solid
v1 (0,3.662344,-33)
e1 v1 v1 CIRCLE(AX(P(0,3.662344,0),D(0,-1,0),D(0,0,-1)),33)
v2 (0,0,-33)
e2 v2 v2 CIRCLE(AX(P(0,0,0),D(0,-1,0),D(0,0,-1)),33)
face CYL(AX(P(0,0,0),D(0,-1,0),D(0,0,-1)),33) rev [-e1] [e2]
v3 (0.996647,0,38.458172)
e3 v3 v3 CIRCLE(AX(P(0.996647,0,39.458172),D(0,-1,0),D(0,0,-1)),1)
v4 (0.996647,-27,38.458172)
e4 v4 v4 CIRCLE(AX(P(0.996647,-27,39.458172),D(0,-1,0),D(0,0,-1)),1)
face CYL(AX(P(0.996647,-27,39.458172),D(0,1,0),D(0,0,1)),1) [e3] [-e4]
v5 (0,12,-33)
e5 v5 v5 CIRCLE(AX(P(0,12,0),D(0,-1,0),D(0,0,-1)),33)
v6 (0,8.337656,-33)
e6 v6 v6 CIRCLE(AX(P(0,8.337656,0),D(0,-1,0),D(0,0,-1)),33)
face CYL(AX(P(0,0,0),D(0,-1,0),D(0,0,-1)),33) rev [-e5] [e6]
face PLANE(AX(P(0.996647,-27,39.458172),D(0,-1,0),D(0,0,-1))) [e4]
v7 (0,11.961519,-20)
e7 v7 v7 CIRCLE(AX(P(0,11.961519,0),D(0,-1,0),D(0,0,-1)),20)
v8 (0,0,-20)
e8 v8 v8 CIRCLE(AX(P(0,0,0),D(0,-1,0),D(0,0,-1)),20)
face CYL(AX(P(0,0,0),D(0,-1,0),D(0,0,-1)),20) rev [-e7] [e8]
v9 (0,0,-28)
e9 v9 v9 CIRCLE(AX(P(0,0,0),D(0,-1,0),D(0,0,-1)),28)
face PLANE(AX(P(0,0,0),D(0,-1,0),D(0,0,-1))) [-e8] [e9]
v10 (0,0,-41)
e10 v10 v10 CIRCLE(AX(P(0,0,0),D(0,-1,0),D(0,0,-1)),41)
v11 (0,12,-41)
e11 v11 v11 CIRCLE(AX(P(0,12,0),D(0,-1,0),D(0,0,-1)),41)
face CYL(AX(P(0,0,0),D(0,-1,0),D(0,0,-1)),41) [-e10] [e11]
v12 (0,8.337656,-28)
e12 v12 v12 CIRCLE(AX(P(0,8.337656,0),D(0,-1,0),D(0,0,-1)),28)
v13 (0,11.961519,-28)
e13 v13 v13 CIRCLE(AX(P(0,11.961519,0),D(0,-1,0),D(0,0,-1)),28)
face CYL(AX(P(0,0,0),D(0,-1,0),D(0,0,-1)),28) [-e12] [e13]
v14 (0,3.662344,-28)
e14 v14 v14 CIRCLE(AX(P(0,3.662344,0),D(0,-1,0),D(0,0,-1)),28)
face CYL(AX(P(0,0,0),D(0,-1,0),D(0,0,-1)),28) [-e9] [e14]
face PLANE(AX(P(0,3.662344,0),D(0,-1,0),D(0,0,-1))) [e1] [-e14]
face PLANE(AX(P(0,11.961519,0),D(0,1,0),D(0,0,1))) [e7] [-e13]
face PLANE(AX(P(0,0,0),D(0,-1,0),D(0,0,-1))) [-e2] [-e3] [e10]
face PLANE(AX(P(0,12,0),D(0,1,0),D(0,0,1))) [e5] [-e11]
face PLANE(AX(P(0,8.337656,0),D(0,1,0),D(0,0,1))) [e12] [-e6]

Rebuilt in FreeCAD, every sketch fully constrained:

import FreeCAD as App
import Part
import Sketcher


def add_polygon(sketch, points):
    """Adds a closed chain of lines whose ends are joined by coincident constraints."""
    first, n = sketch.GeometryCount, len(points)
    for a, b in zip(points, points[1:] + points[:1]):
        sketch.addGeometry(Part.LineSegment(App.Vector(*a, 0), App.Vector(*b, 0)), False)
    for i in range(n):
        sketch.addConstraint(Sketcher.Constraint("Coincident", first + i, 2, first + (i + 1) % n, 1))

doc = App.newDocument("Part")
body = doc.addObject("PartDesign::Body", "Body")

# Sketch on XY plane
sketch1 = doc.addObject("Sketcher::SketchObject", "Sketch")
body.addObject(sketch1)
sketch1.AttachmentSupport = (doc.XY_Plane, [""])
sketch1.MapMode = "FlatFace"
add_polygon(sketch1, [(20, 0), (28, 0), (28, 3.7), (33, 3.7), (33, 0), (41, 0), (41, 12), (33, 12), (33, 8.3), (28, 8.3), (28, 12), (20, 12)])  # lines 0-11
sketch1.addConstraint(Sketcher.Constraint("Horizontal", 0))
sketch1.addConstraint(Sketcher.Constraint("Vertical", 1))
sketch1.addConstraint(Sketcher.Constraint("Horizontal", 2))
sketch1.addConstraint(Sketcher.Constraint("Vertical", 3))
sketch1.addConstraint(Sketcher.Constraint("Horizontal", 4))
sketch1.addConstraint(Sketcher.Constraint("Vertical", 5))
sketch1.addConstraint(Sketcher.Constraint("Horizontal", 6))
sketch1.addConstraint(Sketcher.Constraint("Vertical", 7))
sketch1.addConstraint(Sketcher.Constraint("Horizontal", 8))
sketch1.addConstraint(Sketcher.Constraint("Vertical", 9))
sketch1.addConstraint(Sketcher.Constraint("Horizontal", 10))
sketch1.addConstraint(Sketcher.Constraint("Vertical", 11))
sketch1.addConstraint(Sketcher.Constraint("PointOnObject", 0, 2, -1))
sketch1.addConstraint(Sketcher.Constraint("PointOnObject", 3, 2, -1))
sketch1.addConstraint(Sketcher.Constraint("Vertical", 3, 2, 6, 2))
sketch1.addConstraint(Sketcher.Constraint("Vertical", 1, 2, 8, 2))
sketch1.addConstraint(Sketcher.Constraint("Equal", 0, 4))
sketch1.addConstraint(Sketcher.Constraint("Equal", 3, 7))
sketch1.addConstraint(Sketcher.Constraint("DistanceX", 0, 1, 0, 2, 8.0))
sketch1.addConstraint(Sketcher.Constraint("DistanceX", 2, 1, 2, 2, 5.0))
sketch1.addConstraint(Sketcher.Constraint("DistanceY", 5, 1, 5, 2, 12.0))
sketch1.addConstraint(Sketcher.Constraint("DistanceX", -1, 1, 0, 2, 28.0))
sketch1.addConstraint(Sketcher.Constraint("DistanceY", 11, 2, 11, 1, 11.961519))
sketch1.addConstraint(Sketcher.Constraint("DistanceY", 1, 1, 1, 2, 3.662344))
revolution = doc.addObject("PartDesign::Revolution", "Revolution")
body.addObject(revolution)
revolution.Profile = sketch1
revolution.ReferenceAxis = (sketch1, ["V_Axis"])
revolution.Angle = 360

# Sketch on XZ plane
sketch2 = doc.addObject("Sketcher::SketchObject", "Sketch001")
body.addObject(sketch2)
sketch2.AttachmentSupport = (doc.XZ_Plane, [""])
sketch2.MapMode = "FlatFace"
sketch2.addGeometry(Part.Circle(App.Vector(1, 39.5, 0), App.Vector(0, 0, 1), 1), False)
sketch2.addConstraint(Sketcher.Constraint("Diameter", 0, 2.0))
sketch2.addConstraint(Sketcher.Constraint("DistanceX", -1, 1, 0, 3, 0.996647))
sketch2.addConstraint(Sketcher.Constraint("DistanceY", -1, 1, 0, 3, 39.458172))
pad1 = doc.addObject("PartDesign::Pad", "Pad")
body.addObject(pad1)
pad1.Profile = sketch2
pad1.Length = 27

doc.recompute()
